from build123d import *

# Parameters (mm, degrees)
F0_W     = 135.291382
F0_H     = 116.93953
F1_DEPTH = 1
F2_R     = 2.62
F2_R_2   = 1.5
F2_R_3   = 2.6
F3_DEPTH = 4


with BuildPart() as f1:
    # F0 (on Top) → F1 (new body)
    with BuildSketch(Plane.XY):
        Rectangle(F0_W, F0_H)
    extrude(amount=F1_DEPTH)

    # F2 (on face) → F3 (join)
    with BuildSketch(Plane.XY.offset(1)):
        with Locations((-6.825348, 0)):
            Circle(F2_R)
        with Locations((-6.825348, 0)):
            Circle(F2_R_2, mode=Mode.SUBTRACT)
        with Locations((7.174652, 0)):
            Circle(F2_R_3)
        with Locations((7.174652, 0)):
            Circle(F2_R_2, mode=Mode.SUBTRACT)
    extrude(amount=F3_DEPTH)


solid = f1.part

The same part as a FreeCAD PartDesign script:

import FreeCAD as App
import Part
import Sketcher

V = App.Vector
Q = App.Units.Quantity

doc = App.newDocument("Part")
body = doc.addObject("PartDesign::Body", "Body")

# Sketch on XY plane
sketch1 = body.newObject("Sketcher::SketchObject", "Sketch")
sketch1.AttachmentSupport = (doc.getObject("XY_Plane"), [""])
sketch1.MapMode = "FlatFace"
sketch1.addGeometry([
    Part.LineSegment(V(-67.645691, 58.469765, 0), V(-67.645691, -58.469765, 0)),
    Part.LineSegment(V(-67.645691, -58.469765, 0), V(67.645691, -58.469765, 0)),
    Part.LineSegment(V(67.645691, -58.469765, 0), V(67.645691, 58.469765, 0)),
    Part.LineSegment(V(67.645691, 58.469765, 0), V(-67.645691, 58.469765, 0)),
], False)
sketch1.addConstraint([
    Sketcher.Constraint("Coincident", 0, 2, 1, 1),
    Sketcher.Constraint("Coincident", 1, 2, 2, 1),
    Sketcher.Constraint("Coincident", 2, 2, 3, 1),
    Sketcher.Constraint("Coincident", 3, 2, 0, 1),
    Sketcher.Constraint("Vertical", 0),
    Sketcher.Constraint("Horizontal", 1),
    Sketcher.Constraint("Vertical", 2),
    Sketcher.Constraint("Horizontal", 3),
    Sketcher.Constraint("Symmetric", 0, 2, 2, 2, -1, 1),
    Sketcher.Constraint("DistanceX", 1, 1, 1, 2, Q("135.291382 mm")),
    Sketcher.Constraint("DistanceY", 0, 2, 0, 1, Q("116.93953 mm")),
])
pad1 = body.newObject("PartDesign::Pad", "Pad")
pad1.Profile = sketch1
pad1.Length = 1

# Sketch on XY plane
sketch2 = body.newObject("Sketcher::SketchObject", "Sketch001")
sketch2.AttachmentSupport = (doc.getObject("XY_Plane"), [""])
sketch2.MapMode = "FlatFace"
sketch2.AttachmentOffset = App.Placement(V(0, 0, 1), App.Rotation())
sketch2.addGeometry([
    Part.Circle(V(-6.825348, 0, 0), V(0, 0, 1), 2.62),
    Part.Circle(V(-6.825348, 0, 0), V(0, 0, 1), 1.5),
    Part.Circle(V(7.174652, 0, 0), V(0, 0, 1), 2.6),
    Part.Circle(V(7.174652, 0, 0), V(0, 0, 1), 1.5),
], False)
sketch2.addConstraint([
    Sketcher.Constraint("Coincident", 1, 3, 0, 3),
    Sketcher.Constraint("Coincident", 3, 3, 2, 3),
    Sketcher.Constraint("Equal", 1, 3),
    Sketcher.Constraint("PointOnObject", 0, 3, -1),
    Sketcher.Constraint("PointOnObject", 2, 3, -1),
    Sketcher.Constraint("Diameter", 1, Q("3 mm")),
    Sketcher.Constraint("Diameter", 2, Q("5.2 mm")),
    Sketcher.Constraint("Diameter", 0, Q("5.24 mm")),
    Sketcher.Constraint("DistanceX", 0, 3, 2, 3, Q("14 mm")),
    Sketcher.Constraint("DistanceX", 0, 3, -1, 1, Q("6.825348 mm")),
])
pad2 = body.newObject("PartDesign::Pad", "Pad001")
pad2.Profile = sketch2
pad2.Length = 4

doc.recompute()
